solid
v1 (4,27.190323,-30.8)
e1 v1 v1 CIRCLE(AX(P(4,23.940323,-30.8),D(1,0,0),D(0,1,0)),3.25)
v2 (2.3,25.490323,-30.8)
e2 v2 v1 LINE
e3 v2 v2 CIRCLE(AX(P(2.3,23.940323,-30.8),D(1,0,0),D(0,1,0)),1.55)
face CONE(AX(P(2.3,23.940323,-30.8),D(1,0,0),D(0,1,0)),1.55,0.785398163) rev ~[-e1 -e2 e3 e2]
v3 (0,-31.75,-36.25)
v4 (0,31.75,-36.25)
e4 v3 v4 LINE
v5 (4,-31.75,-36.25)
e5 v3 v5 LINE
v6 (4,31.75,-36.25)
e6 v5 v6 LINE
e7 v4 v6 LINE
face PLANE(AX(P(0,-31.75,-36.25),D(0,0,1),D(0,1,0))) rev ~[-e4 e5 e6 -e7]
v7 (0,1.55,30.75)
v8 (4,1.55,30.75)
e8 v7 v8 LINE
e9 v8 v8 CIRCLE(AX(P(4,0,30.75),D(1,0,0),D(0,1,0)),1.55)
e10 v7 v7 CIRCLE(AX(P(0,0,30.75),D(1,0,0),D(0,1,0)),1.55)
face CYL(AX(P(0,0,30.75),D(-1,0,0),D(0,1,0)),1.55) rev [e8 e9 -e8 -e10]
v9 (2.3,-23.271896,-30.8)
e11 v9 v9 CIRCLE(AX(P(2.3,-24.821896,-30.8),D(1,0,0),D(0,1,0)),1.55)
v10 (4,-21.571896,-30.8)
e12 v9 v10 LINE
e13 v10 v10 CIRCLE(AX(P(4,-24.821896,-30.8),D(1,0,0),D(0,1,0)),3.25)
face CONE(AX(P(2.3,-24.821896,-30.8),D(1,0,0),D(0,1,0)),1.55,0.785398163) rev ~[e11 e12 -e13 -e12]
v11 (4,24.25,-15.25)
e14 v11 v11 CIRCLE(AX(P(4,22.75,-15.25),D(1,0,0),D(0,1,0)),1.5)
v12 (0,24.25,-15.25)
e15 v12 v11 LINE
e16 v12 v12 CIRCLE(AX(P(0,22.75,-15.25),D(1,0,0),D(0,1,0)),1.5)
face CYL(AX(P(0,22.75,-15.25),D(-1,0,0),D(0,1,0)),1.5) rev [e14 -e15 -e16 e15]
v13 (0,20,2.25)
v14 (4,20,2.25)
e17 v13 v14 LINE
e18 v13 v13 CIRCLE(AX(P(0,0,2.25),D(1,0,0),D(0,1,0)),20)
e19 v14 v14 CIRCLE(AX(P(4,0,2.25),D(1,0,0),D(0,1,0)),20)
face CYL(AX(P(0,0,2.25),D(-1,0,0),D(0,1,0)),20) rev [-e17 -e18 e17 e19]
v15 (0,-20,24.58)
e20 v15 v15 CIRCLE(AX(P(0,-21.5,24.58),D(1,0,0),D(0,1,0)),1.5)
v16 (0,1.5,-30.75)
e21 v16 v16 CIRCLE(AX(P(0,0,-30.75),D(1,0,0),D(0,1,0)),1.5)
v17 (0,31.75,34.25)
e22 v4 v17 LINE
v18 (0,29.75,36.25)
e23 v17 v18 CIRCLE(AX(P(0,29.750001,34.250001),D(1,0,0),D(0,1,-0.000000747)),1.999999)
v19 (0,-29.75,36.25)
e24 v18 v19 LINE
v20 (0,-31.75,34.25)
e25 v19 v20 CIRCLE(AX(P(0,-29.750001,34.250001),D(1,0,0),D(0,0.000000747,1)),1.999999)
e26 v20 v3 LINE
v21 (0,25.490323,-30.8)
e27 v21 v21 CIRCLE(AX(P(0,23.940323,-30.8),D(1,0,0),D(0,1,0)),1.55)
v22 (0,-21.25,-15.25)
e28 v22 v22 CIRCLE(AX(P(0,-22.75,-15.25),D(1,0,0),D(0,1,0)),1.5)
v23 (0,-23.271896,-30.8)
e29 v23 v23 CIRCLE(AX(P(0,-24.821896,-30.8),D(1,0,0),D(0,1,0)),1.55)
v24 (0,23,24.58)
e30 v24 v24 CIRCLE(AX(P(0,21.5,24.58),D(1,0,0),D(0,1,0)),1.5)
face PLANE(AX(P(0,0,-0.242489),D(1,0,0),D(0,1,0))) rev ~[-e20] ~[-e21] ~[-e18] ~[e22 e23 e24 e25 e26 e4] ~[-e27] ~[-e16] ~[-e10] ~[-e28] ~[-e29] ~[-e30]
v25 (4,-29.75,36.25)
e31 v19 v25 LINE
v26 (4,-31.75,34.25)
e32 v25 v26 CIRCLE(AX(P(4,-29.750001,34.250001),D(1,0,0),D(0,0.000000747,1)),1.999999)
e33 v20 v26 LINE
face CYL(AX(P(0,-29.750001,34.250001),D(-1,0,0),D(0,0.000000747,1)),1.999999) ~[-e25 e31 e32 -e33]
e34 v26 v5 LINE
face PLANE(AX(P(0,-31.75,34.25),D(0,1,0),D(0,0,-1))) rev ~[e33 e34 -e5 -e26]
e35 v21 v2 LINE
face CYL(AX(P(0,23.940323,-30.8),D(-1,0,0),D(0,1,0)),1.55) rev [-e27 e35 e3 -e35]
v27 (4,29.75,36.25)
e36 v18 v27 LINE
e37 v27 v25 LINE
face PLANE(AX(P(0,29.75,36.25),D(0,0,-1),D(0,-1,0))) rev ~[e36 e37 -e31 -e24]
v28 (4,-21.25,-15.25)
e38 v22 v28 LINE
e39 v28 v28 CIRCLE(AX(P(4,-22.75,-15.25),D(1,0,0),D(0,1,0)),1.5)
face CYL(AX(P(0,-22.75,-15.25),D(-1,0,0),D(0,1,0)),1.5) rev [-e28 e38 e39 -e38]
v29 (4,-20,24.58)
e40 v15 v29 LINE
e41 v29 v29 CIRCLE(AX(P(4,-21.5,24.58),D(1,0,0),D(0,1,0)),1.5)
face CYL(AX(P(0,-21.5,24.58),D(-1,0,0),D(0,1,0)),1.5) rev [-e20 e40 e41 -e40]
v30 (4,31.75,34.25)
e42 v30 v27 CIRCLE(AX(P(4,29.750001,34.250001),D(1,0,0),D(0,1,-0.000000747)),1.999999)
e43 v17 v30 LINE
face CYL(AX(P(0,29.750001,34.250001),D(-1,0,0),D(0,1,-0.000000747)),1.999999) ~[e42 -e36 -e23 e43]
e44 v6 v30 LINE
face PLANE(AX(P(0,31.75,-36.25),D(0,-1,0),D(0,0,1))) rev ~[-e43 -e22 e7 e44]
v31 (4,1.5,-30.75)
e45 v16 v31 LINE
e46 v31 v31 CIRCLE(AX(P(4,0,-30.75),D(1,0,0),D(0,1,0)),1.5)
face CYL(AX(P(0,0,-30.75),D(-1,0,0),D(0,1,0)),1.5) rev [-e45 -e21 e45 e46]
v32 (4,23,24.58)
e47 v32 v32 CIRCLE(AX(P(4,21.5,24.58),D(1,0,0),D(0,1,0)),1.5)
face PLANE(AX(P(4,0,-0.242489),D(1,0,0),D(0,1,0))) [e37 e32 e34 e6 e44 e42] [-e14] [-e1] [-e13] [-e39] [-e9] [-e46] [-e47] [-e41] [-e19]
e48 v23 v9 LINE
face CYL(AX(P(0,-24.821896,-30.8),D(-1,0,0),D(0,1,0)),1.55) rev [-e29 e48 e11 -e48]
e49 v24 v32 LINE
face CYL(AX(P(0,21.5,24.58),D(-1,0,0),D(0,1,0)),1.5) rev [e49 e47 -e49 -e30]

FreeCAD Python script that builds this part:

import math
import FreeCAD as App
import Part
import Sketcher
from FreeCAD import Vector


def edges_at(feature, points):
    """Names of the edges that pass closest to the given points."""
    edges = feature.Shape.Edges
    near = lambda p: min(range(len(edges)), key=lambda i: edges[i].distToShape(Part.Vertex(*p))[0])
    return sorted({f"Edge{near(p) + 1}" for p in points})

doc = App.newDocument("Part")
params = doc.addObject("Spreadsheet::Sheet", "Params")
for row, (alias, value) in enumerate([
    ("sketch1_diameter", "3 mm"),
    ("sketch1_diameter2", "40 mm"),
    ("sketch1_radius", "1.999999 mm"),
    ("sketch1_diameter3", "3.1 mm"),
    ("sketch1_width", "59.5 mm"),
    ("pad1_length", "4 mm"),
    ("chamfer_size", "1.7 mm"),
], start=1):
    params.set(f"A{row}", alias)
    params.set(f"B{row}", "=" + value)
    params.setAlias(f"B{row}", alias)

body = doc.addObject("PartDesign::Body", "Body")

# Sketch on YZ plane
sketch1 = body.newObject("Sketcher::SketchObject", "Sketch")
sketch1.AttachmentSupport = (doc.getObject("YZ_Plane"), [""])
sketch1.MapMode = "FlatFace"
sketch1.addGeometry([
    Part.ArcOfCircle(Part.Circle(Vector(29.750001, 34.250001, 0), Vector(0, 0, 1), 1.999999), math.radians(-0.000043), math.radians(90.000043)),  # 0
    Part.LineSegment(Vector(29.75, 36.25, 0), Vector(-29.75, 36.25, 0)),  # 1
    Part.ArcOfCircle(Part.Circle(Vector(-29.750001, 34.250001, 0), Vector(0, 0, 1), 1.999999), math.radians(89.999957), math.radians(180.000043)),  # 2
    Part.LineSegment(Vector(-31.75, 34.25, 0), Vector(-31.75, -36.25, 0)),  # 3
    Part.LineSegment(Vector(-31.75, -36.25, 0), Vector(31.75, -36.25, 0)),  # 4
    Part.LineSegment(Vector(31.75, -36.25, 0), Vector(31.75, 34.25, 0)),  # 5
    Part.Circle(Vector(-24.821896, -30.8, 0), Vector(0, 0, 1), 1.55),  # 6
    Part.Circle(Vector(-22.75, -15.25, 0), Vector(0, 0, 1), 1.5),  # 7
    Part.Circle(Vector(0, -30.75, 0), Vector(0, 0, 1), 1.5),  # 8
    Part.Circle(Vector(23.940323, -30.8, 0), Vector(0, 0, 1), 1.55),  # 9
    Part.Circle(Vector(22.75, -15.25, 0), Vector(0, 0, 1), 1.5),  # 10
    Part.Circle(Vector(-21.5, 24.58, 0), Vector(0, 0, 1), 1.5),  # 11
    Part.Circle(Vector(0, 2.25, 0), Vector(0, 0, 1), 20),  # 12
    Part.Circle(Vector(0, 30.75, 0), Vector(0, 0, 1), 1.55),  # 13
    Part.Circle(Vector(21.5, 24.58, 0), Vector(0, 0, 1), 1.5),  # 14
], False)
sketch1.addConstraint([
    Sketcher.Constraint("Tangent", 0, 2, 1, 1),
    Sketcher.Constraint("Tangent", 1, 2, 2, 1),
    Sketcher.Constraint("Tangent", 2, 2, 3, 1),
    Sketcher.Constraint("Coincident", 3, 2, 4, 1),
    Sketcher.Constraint("Coincident", 4, 2, 5, 1),
    Sketcher.Constraint("Tangent", 5, 2, 0, 1),
    Sketcher.Constraint("Horizontal", 1),
    Sketcher.Constraint("Vertical", 3),
    Sketcher.Constraint("Horizontal", 4),
    Sketcher.Constraint("Vertical", 5),
    Sketcher.Constraint("Equal", 0, 2),
    Sketcher.Constraint("Equal", 7, 8),
    Sketcher.Constraint("Equal", 6, 9),
    Sketcher.Constraint("Equal", 8, 10),
    Sketcher.Constraint("Equal", 10, 11),
    Sketcher.Constraint("Equal", 9, 13),
    Sketcher.Constraint("Equal", 11, 14),
    Sketcher.Constraint("Symmetric", 8, 3, 13, 3, -1, 1),
    Sketcher.Constraint("Symmetric", 7, 3, 10, 3, -2),
    Sketcher.Constraint("Symmetric", 11, 3, 14, 3, -2),
    Sketcher.Constraint("PointOnObject", 8, 3, -2),
    Sketcher.Constraint("PointOnObject", 12, 3, -2),
    Sketcher.Constraint("Horizontal", 6, 3, 9, 3),
    Sketcher.Constraint("Diameter", 7, 3.0),
    Sketcher.Constraint("Diameter", 12, 40.0),
    Sketcher.Constraint("Radius", 0, 1.999999),
    Sketcher.Constraint("Diameter", 6, 3.1),
    Sketcher.Constraint("DistanceX", 1, 2, 1, 1, 59.5),
    Sketcher.Constraint("DistanceY", 3, 2, 3, 1, 70.5),
    Sketcher.Constraint("DistanceX", 2, 3, 7, 3, 7.000001),
    Sketcher.Constraint("DistanceY", 8, 3, 0, 3, 65.000001),
    Sketcher.Constraint("DistanceX", 10, 3, 0, 3, 7.000001),
    Sketcher.Constraint("DistanceY", 8, 3, 12, 3, 33.0),
    Sketcher.Constraint("DistanceY", 7, 3, 13, 3, 46.0),
    Sketcher.Constraint("DistanceX", 11, 3, 14, 3, 43.0),
    Sketcher.Constraint("DistanceY", 3, 2, 7, 3, 21.0),
    Sketcher.Constraint("DistanceY", 6, 3, -1, 1, 30.8),
    Sketcher.Constraint("DistanceY", -1, 1, 11, 3, 24.58),
    Sketcher.Constraint("DistanceX", 6, 3, 9, 3, 48.762219),
    Sketcher.Constraint("DistanceX", 9, 3, 0, 3, 5.809678),
])
sketch1.setExpression("Constraints[23]", "Params.sketch1_diameter")
sketch1.setExpression("Constraints[24]", "Params.sketch1_diameter2")
sketch1.setExpression("Constraints[25]", "Params.sketch1_radius")
sketch1.setExpression("Constraints[26]", "Params.sketch1_diameter3")
sketch1.setExpression("Constraints[27]", "Params.sketch1_width")
pad1 = body.newObject("PartDesign::Pad", "Pad")
pad1.Profile = sketch1
pad1.setExpression("Length", "Params.pad1_length")
doc.recompute()

chamfer = body.newObject("PartDesign::Chamfer", "Chamfer")
chamfer.Base = (pad1, edges_at(pad1, [(4, -26.372, -30.8), (4, 22.39, -30.8)]))
chamfer.setExpression("Size", "Params.chamfer_size")

doc.recompute()
